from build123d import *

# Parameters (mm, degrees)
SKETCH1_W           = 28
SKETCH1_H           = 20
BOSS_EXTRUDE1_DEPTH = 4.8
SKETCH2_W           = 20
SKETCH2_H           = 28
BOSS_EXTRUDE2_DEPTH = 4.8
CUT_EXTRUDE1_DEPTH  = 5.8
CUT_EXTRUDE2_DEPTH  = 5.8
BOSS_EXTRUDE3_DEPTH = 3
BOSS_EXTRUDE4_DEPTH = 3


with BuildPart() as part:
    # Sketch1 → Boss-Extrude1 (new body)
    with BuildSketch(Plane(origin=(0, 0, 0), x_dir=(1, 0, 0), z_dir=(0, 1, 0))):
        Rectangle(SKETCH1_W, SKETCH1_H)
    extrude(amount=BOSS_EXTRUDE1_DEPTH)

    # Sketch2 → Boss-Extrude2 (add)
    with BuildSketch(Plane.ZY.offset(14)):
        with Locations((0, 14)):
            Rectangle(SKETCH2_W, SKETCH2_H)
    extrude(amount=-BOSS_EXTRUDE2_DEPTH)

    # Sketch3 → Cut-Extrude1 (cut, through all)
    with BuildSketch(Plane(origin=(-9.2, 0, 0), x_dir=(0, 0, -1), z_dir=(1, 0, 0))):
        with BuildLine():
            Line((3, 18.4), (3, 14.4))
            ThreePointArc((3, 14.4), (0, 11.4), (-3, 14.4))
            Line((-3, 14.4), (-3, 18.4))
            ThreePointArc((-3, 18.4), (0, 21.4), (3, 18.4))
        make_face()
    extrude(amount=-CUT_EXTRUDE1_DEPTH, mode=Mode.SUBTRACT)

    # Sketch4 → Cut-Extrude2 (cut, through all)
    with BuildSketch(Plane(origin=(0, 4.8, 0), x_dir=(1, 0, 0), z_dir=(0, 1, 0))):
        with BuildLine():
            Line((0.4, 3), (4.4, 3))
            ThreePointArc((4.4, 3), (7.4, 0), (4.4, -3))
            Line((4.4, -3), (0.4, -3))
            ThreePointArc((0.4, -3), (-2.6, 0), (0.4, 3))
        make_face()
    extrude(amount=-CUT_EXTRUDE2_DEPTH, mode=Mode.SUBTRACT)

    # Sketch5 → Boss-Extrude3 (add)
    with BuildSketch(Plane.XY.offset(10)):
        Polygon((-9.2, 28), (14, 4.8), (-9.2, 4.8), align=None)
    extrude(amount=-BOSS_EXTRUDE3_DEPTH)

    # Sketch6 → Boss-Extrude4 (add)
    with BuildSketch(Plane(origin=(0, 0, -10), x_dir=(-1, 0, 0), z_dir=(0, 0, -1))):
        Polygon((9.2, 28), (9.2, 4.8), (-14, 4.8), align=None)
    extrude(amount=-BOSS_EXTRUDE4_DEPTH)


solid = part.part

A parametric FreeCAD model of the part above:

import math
import FreeCAD as App
import Part
import Sketcher

V = App.Vector


def add_polygon(sketch, points):
    """Adds a closed chain of lines whose ends are joined by coincident constraints."""
    first, n = sketch.GeometryCount, len(points)
    for a, b in zip(points, points[1:] + points[:1]):
        sketch.addGeometry(Part.LineSegment(App.Vector(*a, 0), App.Vector(*b, 0)), False)
    for i in range(n):
        sketch.addConstraint(Sketcher.Constraint("Coincident", first + i, 2, first + (i + 1) % n, 1))

doc = App.newDocument("Part")
params = doc.addObject("Spreadsheet::Sheet", "Params")
for row, (alias, value) in enumerate([
    ("sketch1_width", "28 mm"),
    ("sketch1_height", "20 mm"),
    ("pad1_length", "4.8 mm"),
    ("sketch2_width", "28 mm"),
    ("sketch2_height", "20 mm"),
    ("pad2_length", "4.8 mm"),
    ("sketch3_radius", "3 mm"),
    ("sketch3_width", "4 mm"),
    ("sketch4_radius", "3 mm"),
    ("sketch4_width", "4 mm"),
    ("sketch5_width", "23.2 mm"),
    ("pad3_length", "3 mm"),
    ("sketch6_width", "23.2 mm"),
    ("pad4_length", "3 mm"),
], start=1):
    params.set(f"A{row}", alias)
    params.set(f"B{row}", "=" + value)
    params.setAlias(f"B{row}", alias)

body = doc.addObject("PartDesign::Body", "Body")

# Sketch on XZ plane
sketch1 = body.newObject("Sketcher::SketchObject", "Sketch")
sketch1.AttachmentSupport = (doc.getObject("XZ_Plane"), [""])
sketch1.MapMode = "FlatFace"
add_polygon(sketch1, [(-14, -10), (-14, 10), (14, 10), (14, -10)])  # lines 0-3
sketch1.addConstraint(Sketcher.Constraint("Vertical", 0))
sketch1.addConstraint(Sketcher.Constraint("Horizontal", 1))
sketch1.addConstraint(Sketcher.Constraint("Vertical", 2))
sketch1.addConstraint(Sketcher.Constraint("Horizontal", 3))
sketch1.addConstraint(Sketcher.Constraint("Symmetric", 0, 2, 2, 2, -1, 1))
sketch1.addConstraint(Sketcher.Constraint("DistanceX", 1, 1, 1, 2, 28.0))
sketch1.addConstraint(Sketcher.Constraint("DistanceY", 0, 1, 0, 2, 20.0))
sketch1.setExpression("Constraints[9]", "Params.sketch1_width")
sketch1.setExpression("Constraints[10]", "Params.sketch1_height")
pad1 = body.newObject("PartDesign::Pad", "Pad")
pad1.Profile = sketch1
pad1.setExpression("Length", "Params.pad1_length")
pad1.Reversed = True

# Sketch on YZ plane
sketch2 = body.newObject("Sketcher::SketchObject", "Sketch001")
sketch2.AttachmentSupport = (doc.getObject("YZ_Plane"), [""])
sketch2.MapMode = "FlatFace"
sketch2.AttachmentOffset = App.Placement(V(0, 0, -14), App.Rotation())
add_polygon(sketch2, [(28, -10), (0, -10), (0, 10), (28, 10)])  # lines 0-3
sketch2.addConstraint(Sketcher.Constraint("Horizontal", 0))
sketch2.addConstraint(Sketcher.Constraint("Vertical", 1))
sketch2.addConstraint(Sketcher.Constraint("Horizontal", 2))
sketch2.addConstraint(Sketcher.Constraint("Vertical", 3))
sketch2.addConstraint(Sketcher.Constraint("Symmetric", 0, 2, 1, 2, -1, 1))
sketch2.addConstraint(Sketcher.Constraint("DistanceX", 0, 2, 0, 1, 28.0))
sketch2.addConstraint(Sketcher.Constraint("DistanceY", 1, 1, 1, 2, 20.0))
sketch2.setExpression("Constraints[9]", "Params.sketch2_width")
sketch2.setExpression("Constraints[10]", "Params.sketch2_height")
pad2 = body.newObject("PartDesign::Pad", "Pad001")
pad2.Profile = sketch2
pad2.setExpression("Length", "Params.pad2_length")

# Sketch on YZ plane
sketch3 = body.newObject("Sketcher::SketchObject", "Sketch002")
sketch3.AttachmentSupport = (doc.getObject("YZ_Plane"), [""])
sketch3.MapMode = "FlatFace"
sketch3.AttachmentOffset = App.Placement(V(0, 0, -9.2), App.Rotation())
sketch3.addGeometry(Part.LineSegment(V(14.4, -3, 0), V(18.4, -3, 0)), False)
sketch3.addGeometry(Part.ArcOfCircle(Part.Circle(V(18.4, 0, 0), V(0, 0, 1), 3), math.radians(-90), math.radians(90)), False)
sketch3.addGeometry(Part.LineSegment(V(18.4, 3, 0), V(14.4, 3, 0)), False)
sketch3.addGeometry(Part.ArcOfCircle(Part.Circle(V(14.4, 0, 0), V(0, 0, 1), 3), math.radians(90), math.radians(270)), False)
sketch3.addConstraint(Sketcher.Constraint("Tangent", 0, 2, 1, 1))
sketch3.addConstraint(Sketcher.Constraint("Tangent", 1, 2, 2, 1))
sketch3.addConstraint(Sketcher.Constraint("Tangent", 2, 2, 3, 1))
sketch3.addConstraint(Sketcher.Constraint("Tangent", 3, 2, 0, 1))
sketch3.addConstraint(Sketcher.Constraint("Horizontal", 0))
sketch3.addConstraint(Sketcher.Constraint("Horizontal", 2))
sketch3.addConstraint(Sketcher.Constraint("PointOnObject", 1, 3, -1))
sketch3.addConstraint(Sketcher.Constraint("Radius", 1, 3.0))
sketch3.addConstraint(Sketcher.Constraint("DistanceX", 0, 1, 0, 2, 4.0))
sketch3.addConstraint(Sketcher.Constraint("DistanceX", -1, 1, 1, 3, 18.4))
sketch3.setExpression("Constraints[7]", "Params.sketch3_radius")
sketch3.setExpression("Constraints[8]", "Params.sketch3_width")
pocket1 = body.newObject("PartDesign::Pocket", "Pocket")
pocket1.Profile = sketch3
pocket1.Type = "ThroughAll"

# Sketch on XZ plane
sketch4 = body.newObject("Sketcher::SketchObject", "Sketch003")
sketch4.AttachmentSupport = (doc.getObject("XZ_Plane"), [""])
sketch4.MapMode = "FlatFace"
sketch4.AttachmentOffset = App.Placement(V(0, 0, -4.8), App.Rotation())
sketch4.addGeometry(Part.LineSegment(V(4.4, -3, 0), V(0.4, -3, 0)), False)
sketch4.addGeometry(Part.ArcOfCircle(Part.Circle(V(0.4, 0, 0), V(0, 0, 1), 3), math.radians(90), math.radians(270)), False)
sketch4.addGeometry(Part.LineSegment(V(0.4, 3, 0), V(4.4, 3, 0)), False)
sketch4.addGeometry(Part.ArcOfCircle(Part.Circle(V(4.4, 0, 0), V(0, 0, 1), 3), math.radians(-90), math.radians(90)), False)
sketch4.addConstraint(Sketcher.Constraint("Tangent", 0, 2, 1, 2))
sketch4.addConstraint(Sketcher.Constraint("Tangent", 1, 1, 2, 1))
sketch4.addConstraint(Sketcher.Constraint("Tangent", 2, 2, 3, 2))
sketch4.addConstraint(Sketcher.Constraint("Tangent", 3, 1, 0, 1))
sketch4.addConstraint(Sketcher.Constraint("Horizontal", 0))
sketch4.addConstraint(Sketcher.Constraint("Horizontal", 2))
sketch4.addConstraint(Sketcher.Constraint("PointOnObject", 1, 3, -1))
sketch4.addConstraint(Sketcher.Constraint("Radius", 1, 3.0))
sketch4.addConstraint(Sketcher.Constraint("DistanceX", 0, 2, 0, 1, 4.0))
sketch4.addConstraint(Sketcher.Constraint("DistanceX", -1, 1, 1, 3, 0.4))
sketch4.setExpression("Constraints[7]", "Params.sketch4_radius")
sketch4.setExpression("Constraints[8]", "Params.sketch4_width")
pocket2 = body.newObject("PartDesign::Pocket", "Pocket001")
pocket2.Profile = sketch4
pocket2.Type = "ThroughAll"
pocket2.Reversed = True

# Sketch on XY plane
sketch5 = body.newObject("Sketcher::SketchObject", "Sketch004")
sketch5.AttachmentSupport = (doc.getObject("XY_Plane"), [""])
sketch5.MapMode = "FlatFace"
sketch5.AttachmentOffset = App.Placement(V(0, 0, 10), App.Rotation())
add_polygon(sketch5, [(14, 5), (-9, 28), (-9, 5)])  # lines 0-2
sketch5.addConstraint(Sketcher.Constraint("Vertical", 1))
sketch5.addConstraint(Sketcher.Constraint("Horizontal", 2))
sketch5.addConstraint(Sketcher.Constraint("Equal", 2, 1))
sketch5.addConstraint(Sketcher.Constraint("DistanceX", 2, 1, 2, 2, 23.2))
sketch5.addConstraint(Sketcher.Constraint("DistanceY", -1, 1, 0, 2, 28.0))
sketch5.addConstraint(Sketcher.Constraint("DistanceX", -1, 1, 2, 2, 14.0))
sketch5.setExpression("Constraints[6]", "Params.sketch5_width")
pad3 = body.newObject("PartDesign::Pad", "Pad002")
pad3.Profile = sketch5
pad3.setExpression("Length", "Params.pad3_length")
pad3.Reversed = True

# Sketch on XY plane
sketch6 = body.newObject("Sketcher::SketchObject", "Sketch005")
sketch6.AttachmentSupport = (doc.getObject("XY_Plane"), [""])
sketch6.MapMode = "FlatFace"
sketch6.AttachmentOffset = App.Placement(V(0, 0, -10), App.Rotation())
add_polygon(sketch6, [(-9, 5), (-9, 28), (14, 5)])  # lines 0-2
sketch6.addConstraint(Sketcher.Constraint("Vertical", 0))
sketch6.addConstraint(Sketcher.Constraint("Horizontal", 2))
sketch6.addConstraint(Sketcher.Constraint("Equal", 2, 0))
sketch6.addConstraint(Sketcher.Constraint("DistanceX", 2, 2, 2, 1, 23.2))
sketch6.addConstraint(Sketcher.Constraint("DistanceY", -1, 1, 0, 2, 28.0))
sketch6.addConstraint(Sketcher.Constraint("DistanceX", -1, 1, 1, 2, 14.0))
sketch6.setExpression("Constraints[6]", "Params.sketch6_width")
pad4 = body.newObject("PartDesign::Pad", "Pad003")
pad4.Profile = sketch6
pad4.setExpression("Length", "Params.pad4_length")

doc.recompute()
